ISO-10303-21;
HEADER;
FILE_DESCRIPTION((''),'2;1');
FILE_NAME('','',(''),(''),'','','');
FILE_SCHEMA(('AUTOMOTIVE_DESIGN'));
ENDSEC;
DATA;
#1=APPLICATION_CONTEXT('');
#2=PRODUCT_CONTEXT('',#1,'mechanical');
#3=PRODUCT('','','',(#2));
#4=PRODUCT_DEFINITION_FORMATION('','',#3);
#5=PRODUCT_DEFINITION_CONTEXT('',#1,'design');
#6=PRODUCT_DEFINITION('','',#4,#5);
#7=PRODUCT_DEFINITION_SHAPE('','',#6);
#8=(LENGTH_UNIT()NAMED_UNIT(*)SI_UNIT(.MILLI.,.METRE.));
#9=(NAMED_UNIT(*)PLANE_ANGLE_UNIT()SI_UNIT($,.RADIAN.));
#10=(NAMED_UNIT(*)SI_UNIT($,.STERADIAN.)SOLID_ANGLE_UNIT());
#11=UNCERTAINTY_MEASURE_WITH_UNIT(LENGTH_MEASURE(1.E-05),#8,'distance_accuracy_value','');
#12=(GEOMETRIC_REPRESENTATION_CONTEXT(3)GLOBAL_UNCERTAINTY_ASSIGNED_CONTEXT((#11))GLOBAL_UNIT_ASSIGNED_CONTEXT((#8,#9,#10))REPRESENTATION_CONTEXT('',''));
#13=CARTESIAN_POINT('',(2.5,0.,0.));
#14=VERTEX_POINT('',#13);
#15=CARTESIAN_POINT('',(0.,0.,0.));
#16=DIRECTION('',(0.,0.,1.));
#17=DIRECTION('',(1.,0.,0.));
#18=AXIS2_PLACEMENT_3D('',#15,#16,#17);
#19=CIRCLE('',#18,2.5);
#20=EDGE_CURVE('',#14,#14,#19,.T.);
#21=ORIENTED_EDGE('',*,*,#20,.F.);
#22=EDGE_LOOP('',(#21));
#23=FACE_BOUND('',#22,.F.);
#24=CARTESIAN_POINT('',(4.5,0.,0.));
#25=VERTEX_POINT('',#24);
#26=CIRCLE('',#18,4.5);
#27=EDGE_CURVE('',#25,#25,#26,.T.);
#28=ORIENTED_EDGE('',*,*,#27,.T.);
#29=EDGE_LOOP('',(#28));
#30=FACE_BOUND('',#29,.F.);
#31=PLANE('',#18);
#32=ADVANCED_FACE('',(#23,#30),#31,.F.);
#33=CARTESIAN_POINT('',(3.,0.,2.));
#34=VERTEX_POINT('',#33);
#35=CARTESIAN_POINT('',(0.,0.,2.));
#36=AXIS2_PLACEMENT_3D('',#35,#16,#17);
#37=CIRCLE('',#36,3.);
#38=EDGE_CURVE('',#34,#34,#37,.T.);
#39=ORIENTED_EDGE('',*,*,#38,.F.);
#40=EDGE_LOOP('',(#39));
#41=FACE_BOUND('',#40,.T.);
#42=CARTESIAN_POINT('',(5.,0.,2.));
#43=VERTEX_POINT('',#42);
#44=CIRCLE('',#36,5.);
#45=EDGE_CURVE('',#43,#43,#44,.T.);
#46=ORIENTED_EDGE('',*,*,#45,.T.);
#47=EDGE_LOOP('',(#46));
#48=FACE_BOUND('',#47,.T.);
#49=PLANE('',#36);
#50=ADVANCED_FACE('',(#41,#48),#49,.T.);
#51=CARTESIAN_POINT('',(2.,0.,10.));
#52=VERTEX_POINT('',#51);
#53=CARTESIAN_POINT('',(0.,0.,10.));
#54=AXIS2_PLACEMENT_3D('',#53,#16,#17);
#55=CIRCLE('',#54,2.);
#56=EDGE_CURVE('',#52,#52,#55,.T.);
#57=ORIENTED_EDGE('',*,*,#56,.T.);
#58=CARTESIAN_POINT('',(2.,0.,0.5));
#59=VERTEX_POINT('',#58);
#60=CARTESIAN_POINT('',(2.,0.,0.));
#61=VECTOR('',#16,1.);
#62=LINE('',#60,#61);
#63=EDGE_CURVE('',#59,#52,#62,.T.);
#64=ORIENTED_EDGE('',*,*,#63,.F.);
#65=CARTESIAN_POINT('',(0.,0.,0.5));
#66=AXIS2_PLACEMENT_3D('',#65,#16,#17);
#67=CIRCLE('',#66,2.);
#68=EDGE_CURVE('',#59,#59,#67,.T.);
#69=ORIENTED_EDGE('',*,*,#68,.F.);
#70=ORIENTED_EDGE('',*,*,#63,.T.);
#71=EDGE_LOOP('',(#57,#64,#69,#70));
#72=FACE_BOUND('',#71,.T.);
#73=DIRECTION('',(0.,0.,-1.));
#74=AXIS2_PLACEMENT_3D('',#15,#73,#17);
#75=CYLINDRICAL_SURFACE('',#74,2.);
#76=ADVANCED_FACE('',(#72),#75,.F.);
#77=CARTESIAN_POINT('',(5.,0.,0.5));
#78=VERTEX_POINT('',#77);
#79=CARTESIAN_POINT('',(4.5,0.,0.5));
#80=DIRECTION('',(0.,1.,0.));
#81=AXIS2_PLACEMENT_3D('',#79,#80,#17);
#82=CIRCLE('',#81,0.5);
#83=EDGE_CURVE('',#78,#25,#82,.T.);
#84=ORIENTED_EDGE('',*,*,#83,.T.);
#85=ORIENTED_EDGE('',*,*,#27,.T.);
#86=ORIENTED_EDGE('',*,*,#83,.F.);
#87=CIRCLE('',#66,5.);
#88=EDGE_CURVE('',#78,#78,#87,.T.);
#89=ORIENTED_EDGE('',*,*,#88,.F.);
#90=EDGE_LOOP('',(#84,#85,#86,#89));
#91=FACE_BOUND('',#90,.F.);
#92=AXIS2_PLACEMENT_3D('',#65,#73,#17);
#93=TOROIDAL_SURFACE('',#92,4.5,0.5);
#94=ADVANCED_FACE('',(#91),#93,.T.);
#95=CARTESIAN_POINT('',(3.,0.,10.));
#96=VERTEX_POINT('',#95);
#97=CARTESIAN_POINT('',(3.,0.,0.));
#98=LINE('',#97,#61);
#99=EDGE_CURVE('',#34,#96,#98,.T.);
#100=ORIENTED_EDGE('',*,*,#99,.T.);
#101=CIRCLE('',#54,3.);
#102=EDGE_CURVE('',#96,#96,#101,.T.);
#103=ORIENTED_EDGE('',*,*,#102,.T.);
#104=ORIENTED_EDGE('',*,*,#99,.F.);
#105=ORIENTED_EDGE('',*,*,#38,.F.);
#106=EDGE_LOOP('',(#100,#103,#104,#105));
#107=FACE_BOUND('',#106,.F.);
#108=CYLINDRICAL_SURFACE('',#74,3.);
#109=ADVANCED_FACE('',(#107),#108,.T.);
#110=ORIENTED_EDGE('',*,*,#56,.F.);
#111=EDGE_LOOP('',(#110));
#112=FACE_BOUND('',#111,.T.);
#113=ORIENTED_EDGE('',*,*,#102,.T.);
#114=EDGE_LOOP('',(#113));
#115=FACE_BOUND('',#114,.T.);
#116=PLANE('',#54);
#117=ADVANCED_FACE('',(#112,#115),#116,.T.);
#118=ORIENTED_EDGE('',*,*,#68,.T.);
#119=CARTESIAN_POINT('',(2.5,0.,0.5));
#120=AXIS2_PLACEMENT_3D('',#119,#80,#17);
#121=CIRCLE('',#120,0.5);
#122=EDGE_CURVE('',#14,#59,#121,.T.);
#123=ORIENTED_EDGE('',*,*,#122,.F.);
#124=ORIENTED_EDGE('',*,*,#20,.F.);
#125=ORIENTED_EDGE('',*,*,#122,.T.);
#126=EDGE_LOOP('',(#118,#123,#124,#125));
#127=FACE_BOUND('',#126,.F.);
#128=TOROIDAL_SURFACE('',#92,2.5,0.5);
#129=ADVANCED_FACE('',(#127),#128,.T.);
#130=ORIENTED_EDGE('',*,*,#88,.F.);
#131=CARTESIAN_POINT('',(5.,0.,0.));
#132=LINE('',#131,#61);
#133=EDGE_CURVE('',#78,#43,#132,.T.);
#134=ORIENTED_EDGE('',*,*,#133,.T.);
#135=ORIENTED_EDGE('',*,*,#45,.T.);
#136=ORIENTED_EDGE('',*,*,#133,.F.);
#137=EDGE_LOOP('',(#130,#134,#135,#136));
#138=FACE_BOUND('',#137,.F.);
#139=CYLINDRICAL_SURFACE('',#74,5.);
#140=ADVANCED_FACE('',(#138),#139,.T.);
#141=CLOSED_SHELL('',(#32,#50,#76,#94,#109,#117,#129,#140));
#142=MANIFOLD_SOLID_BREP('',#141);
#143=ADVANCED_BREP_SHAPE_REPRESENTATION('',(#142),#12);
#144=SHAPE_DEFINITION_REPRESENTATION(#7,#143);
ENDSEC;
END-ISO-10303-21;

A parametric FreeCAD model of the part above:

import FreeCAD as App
import Part
import Sketcher
from FreeCAD import Vector


def edges_at(feature, points):
    """Names of the edges that pass closest to the given points."""
    edges = feature.Shape.Edges
    near = lambda p: min(range(len(edges)), key=lambda i: edges[i].distToShape(Part.Vertex(*p))[0])
    return sorted({f"Edge{near(p) + 1}" for p in points})

doc = App.newDocument("Part")
body = doc.addObject("PartDesign::Body", "Body")

# Sketch on XY plane
sketch1 = body.newObject("Sketcher::SketchObject", "Sketch")
sketch1.AttachmentSupport = (doc.getObject("XY_Plane"), [""])
sketch1.MapMode = "FlatFace"
sketch1.addGeometry([
    Part.Circle(Vector(0, 0, 0), Vector(0, 0, 1), 3),
    Part.Circle(Vector(0, 0, 0), Vector(0, 0, 1), 2),
], False)
sketch1.addConstraint([
    Sketcher.Constraint("Coincident", 0, 3, -1, 1),
    Sketcher.Constraint("Coincident", 1, 3, -1, 1),
    Sketcher.Constraint("Diameter", 0, 6.0),
    Sketcher.Constraint("Diameter", 1, 4.0),
])
pad1 = body.newObject("PartDesign::Pad", "Pad")
pad1.Profile = sketch1
pad1.Length = 10

# Sketch on XY plane
sketch2 = body.newObject("Sketcher::SketchObject", "Sketch001")
sketch2.AttachmentSupport = (doc.getObject("XY_Plane"), [""])
sketch2.MapMode = "FlatFace"
sketch2.addGeometry([
    Part.Circle(Vector(0, 0, 0), Vector(0, 0, 1), 5),
    Part.Circle(Vector(0, 0, 0), Vector(0, 0, 1), 3),
], False)
sketch2.addConstraint([
    Sketcher.Constraint("Coincident", 0, 3, -1, 1),
    Sketcher.Constraint("Coincident", 1, 3, -1, 1),
    Sketcher.Constraint("Diameter", 0, 10.0),
    Sketcher.Constraint("Diameter", 1, 6.0),
])
pad2 = body.newObject("PartDesign::Pad", "Pad001")
pad2.Profile = sketch2
pad2.Length = 2
doc.recompute()

fillet = body.newObject("PartDesign::Fillet", "Fillet")
fillet.Base = (pad2, edges_at(pad2, [(-5, 0, 0), (-2, 0, 0)]))
fillet.Radius = 0.5

doc.recompute()
